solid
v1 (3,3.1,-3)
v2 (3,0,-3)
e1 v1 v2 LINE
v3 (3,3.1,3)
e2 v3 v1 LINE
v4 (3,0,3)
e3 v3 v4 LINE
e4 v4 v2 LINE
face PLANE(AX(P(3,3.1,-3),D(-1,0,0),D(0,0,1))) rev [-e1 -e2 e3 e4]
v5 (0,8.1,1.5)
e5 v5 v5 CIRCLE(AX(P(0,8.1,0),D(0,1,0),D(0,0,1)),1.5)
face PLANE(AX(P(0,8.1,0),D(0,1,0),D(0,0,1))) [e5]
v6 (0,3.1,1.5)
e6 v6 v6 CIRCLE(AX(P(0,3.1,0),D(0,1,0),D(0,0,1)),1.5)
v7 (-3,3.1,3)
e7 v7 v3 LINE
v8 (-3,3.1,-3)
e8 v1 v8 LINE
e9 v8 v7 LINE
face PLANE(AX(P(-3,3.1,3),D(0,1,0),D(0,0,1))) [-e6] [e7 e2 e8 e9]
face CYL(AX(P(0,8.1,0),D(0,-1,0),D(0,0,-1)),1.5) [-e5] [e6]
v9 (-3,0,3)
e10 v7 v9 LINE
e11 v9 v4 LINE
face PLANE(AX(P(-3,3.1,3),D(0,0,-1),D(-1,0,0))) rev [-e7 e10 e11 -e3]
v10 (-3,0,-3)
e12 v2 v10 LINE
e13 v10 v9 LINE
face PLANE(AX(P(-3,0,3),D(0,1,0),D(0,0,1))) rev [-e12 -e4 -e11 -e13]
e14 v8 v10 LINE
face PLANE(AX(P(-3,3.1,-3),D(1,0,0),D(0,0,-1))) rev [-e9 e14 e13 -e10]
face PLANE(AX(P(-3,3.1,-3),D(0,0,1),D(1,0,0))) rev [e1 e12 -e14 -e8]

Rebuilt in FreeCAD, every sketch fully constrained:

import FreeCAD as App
import Part
import Sketcher
Q = App.Units.Quantity


def add_polygon(sketch, points):
    """Adds a closed chain of lines whose ends are joined by coincident constraints."""
    first, n = sketch.GeometryCount, len(points)
    for a, b in zip(points, points[1:] + points[:1]):
        sketch.addGeometry(Part.LineSegment(App.Vector(*a, 0), App.Vector(*b, 0)), False)
    for i in range(n):
        sketch.addConstraint(Sketcher.Constraint("Coincident", first + i, 2, first + (i + 1) % n, 1))

doc = App.newDocument("Part")
body = doc.addObject("PartDesign::Body", "Body")

# Sketch on XZ plane
sketch1 = body.newObject("Sketcher::SketchObject", "Sketch")
sketch1.AttachmentSupport = (doc.getObject("XZ_Plane"), [""])
sketch1.MapMode = "FlatFace"
add_polygon(sketch1, [(-3, -3), (-3, 3), (3, 3), (3, -3)])  # lines 0-3
sketch1.addConstraint([
    Sketcher.Constraint("Vertical", 0),
    Sketcher.Constraint("Horizontal", 1),
    Sketcher.Constraint("Vertical", 2),
    Sketcher.Constraint("Horizontal", 3),
    Sketcher.Constraint("Symmetric", 0, 2, 2, 2, -1, 1),
    Sketcher.Constraint("Equal", 3, 0),
    Sketcher.Constraint("DistanceX", 1, 1, 1, 2, Q("6 mm")),
])
pad1 = body.newObject("PartDesign::Pad", "Pad")
pad1.Profile = sketch1
pad1.Length = 3.1
pad1.Reversed = True

# Sketch on XZ plane
sketch2 = body.newObject("Sketcher::SketchObject", "Sketch001")
sketch2.AttachmentSupport = (doc.getObject("XZ_Plane"), [""])
sketch2.MapMode = "FlatFace"
sketch2.AttachmentOffset = App.Placement(App.Vector(0, 0, -3.1), App.Rotation())
sketch2.addGeometry(Part.Circle(App.Vector(0, 0, 0), App.Vector(0, 0, 1), 1.5), False)
sketch2.addConstraint([
    Sketcher.Constraint("Coincident", 0, 3, -1, 1),
    Sketcher.Constraint("Diameter", 0, Q("3 mm")),
])
pad2 = body.newObject("PartDesign::Pad", "Pad001")
pad2.Profile = sketch2
pad2.Length = 5
pad2.Reversed = True

doc.recompute()
